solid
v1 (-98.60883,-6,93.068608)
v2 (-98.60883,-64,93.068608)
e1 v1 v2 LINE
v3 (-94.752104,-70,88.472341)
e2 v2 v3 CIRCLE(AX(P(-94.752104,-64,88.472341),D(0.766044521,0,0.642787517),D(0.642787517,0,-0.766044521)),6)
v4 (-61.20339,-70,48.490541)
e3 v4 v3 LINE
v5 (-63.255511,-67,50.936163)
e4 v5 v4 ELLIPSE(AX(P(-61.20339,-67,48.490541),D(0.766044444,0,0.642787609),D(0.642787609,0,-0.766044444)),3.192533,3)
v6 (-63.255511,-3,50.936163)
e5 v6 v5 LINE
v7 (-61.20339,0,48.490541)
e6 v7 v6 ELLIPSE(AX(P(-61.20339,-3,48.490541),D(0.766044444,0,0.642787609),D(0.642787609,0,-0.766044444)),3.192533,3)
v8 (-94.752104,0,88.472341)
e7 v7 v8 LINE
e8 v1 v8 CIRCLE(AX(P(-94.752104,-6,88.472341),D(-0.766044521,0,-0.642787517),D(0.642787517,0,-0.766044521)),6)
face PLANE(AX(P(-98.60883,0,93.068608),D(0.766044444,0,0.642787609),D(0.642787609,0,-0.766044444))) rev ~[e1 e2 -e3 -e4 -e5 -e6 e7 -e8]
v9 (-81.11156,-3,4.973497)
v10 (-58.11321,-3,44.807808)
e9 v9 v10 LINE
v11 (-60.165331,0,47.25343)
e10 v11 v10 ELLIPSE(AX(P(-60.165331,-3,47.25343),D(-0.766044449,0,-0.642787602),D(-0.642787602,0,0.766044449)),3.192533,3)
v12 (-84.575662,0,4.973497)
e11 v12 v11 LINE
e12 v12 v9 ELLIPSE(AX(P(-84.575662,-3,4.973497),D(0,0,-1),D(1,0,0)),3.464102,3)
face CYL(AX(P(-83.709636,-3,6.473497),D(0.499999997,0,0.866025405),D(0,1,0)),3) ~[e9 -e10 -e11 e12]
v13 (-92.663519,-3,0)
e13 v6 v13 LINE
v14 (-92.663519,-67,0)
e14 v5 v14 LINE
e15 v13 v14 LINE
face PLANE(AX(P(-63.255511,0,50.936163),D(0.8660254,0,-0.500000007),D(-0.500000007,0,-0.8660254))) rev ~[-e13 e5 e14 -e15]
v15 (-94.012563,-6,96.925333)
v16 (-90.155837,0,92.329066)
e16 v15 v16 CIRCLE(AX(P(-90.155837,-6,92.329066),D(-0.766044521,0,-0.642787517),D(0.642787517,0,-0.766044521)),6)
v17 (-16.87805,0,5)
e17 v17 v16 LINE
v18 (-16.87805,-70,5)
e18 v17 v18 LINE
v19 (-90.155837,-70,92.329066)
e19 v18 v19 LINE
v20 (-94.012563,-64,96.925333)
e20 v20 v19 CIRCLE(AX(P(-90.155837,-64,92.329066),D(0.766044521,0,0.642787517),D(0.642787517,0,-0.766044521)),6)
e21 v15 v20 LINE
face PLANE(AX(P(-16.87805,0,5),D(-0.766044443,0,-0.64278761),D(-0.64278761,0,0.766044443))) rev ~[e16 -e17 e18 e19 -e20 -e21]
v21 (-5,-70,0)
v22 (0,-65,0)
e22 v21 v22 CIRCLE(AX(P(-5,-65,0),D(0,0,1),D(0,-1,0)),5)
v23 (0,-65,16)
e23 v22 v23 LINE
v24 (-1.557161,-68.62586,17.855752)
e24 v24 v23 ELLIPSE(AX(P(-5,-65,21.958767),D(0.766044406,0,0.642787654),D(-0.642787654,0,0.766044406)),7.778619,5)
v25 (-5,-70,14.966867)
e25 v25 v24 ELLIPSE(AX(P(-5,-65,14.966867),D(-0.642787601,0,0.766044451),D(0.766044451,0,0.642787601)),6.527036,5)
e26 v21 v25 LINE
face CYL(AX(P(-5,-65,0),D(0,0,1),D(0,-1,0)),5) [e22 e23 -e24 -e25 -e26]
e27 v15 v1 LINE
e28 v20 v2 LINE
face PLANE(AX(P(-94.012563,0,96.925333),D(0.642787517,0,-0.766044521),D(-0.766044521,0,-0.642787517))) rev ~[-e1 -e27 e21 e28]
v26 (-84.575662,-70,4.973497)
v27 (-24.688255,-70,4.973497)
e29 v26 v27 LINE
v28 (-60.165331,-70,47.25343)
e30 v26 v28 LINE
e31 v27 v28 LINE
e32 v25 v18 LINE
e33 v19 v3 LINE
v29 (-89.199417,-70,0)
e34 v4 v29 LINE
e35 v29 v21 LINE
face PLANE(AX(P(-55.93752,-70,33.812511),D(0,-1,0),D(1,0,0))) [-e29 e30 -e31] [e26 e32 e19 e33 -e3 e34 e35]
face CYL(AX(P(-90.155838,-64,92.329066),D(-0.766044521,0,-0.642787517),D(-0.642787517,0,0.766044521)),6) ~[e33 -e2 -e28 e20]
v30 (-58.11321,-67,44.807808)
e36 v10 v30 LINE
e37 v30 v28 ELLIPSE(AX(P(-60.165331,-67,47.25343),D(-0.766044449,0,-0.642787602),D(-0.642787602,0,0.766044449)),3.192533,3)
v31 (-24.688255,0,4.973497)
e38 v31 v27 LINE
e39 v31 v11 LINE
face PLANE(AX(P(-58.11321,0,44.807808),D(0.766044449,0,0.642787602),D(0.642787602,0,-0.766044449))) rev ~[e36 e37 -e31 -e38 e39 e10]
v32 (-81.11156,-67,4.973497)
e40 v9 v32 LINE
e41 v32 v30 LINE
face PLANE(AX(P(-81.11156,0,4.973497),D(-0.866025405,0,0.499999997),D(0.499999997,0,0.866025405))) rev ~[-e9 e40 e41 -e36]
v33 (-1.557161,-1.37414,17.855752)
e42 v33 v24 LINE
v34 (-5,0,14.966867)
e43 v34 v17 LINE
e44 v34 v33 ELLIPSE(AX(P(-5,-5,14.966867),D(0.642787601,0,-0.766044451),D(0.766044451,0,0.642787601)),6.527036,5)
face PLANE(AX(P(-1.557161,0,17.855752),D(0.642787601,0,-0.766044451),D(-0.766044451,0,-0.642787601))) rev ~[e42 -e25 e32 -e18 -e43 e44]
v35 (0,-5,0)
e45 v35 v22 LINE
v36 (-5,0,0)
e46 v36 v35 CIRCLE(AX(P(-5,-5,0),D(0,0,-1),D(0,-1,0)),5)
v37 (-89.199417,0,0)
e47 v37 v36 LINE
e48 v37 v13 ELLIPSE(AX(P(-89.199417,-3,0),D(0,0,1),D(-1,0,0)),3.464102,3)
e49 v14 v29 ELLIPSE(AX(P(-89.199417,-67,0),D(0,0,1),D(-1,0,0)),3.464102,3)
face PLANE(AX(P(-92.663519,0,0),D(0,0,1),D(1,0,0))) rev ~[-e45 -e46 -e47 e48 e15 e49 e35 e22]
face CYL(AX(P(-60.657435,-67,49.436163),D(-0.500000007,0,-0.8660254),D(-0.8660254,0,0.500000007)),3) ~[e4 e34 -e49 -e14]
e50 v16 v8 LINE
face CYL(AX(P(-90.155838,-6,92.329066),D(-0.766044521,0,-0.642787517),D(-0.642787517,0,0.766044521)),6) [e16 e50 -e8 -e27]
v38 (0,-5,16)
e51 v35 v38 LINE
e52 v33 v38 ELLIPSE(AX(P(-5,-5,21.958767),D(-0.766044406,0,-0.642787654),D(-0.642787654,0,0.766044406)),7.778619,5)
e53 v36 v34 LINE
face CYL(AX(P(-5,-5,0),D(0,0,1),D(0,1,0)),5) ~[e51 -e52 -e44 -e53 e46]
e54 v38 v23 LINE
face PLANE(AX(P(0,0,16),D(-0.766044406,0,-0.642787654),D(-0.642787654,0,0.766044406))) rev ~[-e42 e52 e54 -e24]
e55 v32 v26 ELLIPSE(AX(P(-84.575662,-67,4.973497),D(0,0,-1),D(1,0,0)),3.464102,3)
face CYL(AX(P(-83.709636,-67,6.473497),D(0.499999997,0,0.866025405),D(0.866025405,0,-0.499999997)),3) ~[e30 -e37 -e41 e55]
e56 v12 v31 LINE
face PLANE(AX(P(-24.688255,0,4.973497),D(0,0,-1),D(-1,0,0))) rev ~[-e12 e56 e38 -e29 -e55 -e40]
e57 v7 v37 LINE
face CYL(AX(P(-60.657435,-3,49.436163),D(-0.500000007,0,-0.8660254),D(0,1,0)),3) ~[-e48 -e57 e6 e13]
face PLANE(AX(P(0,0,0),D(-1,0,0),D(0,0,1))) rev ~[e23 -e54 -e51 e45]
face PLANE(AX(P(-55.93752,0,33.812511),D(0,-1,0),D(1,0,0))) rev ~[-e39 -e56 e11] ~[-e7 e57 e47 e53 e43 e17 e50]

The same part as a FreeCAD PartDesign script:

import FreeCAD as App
import Part
import Sketcher
from FreeCAD import Vector
Q = App.Units.Quantity


def edges_at(feature, points):
    """Names of the edges that pass closest to the given points."""
    edges = feature.Shape.Edges
    near = lambda p: min(range(len(edges)), key=lambda i: edges[i].distToShape(Part.Vertex(*p))[0])
    return sorted({f"Edge{near(p) + 1}" for p in points})

doc = App.newDocument("Part")
params = doc.addObject("Spreadsheet::Sheet", "Params")
for row, (alias, value) in enumerate([
    ("sketch1_height", "16 mm"),
    ("sketch1_length", "20 mm"),
    ("sketch1_length2", "120 mm"),
    ("sketch1_length3", "6 mm"),
    ("sketch1_length4", "55.000001 mm"),
    ("pad1_length", "70 mm"),
    ("fillet_radius", "6 mm"),
    ("fillet2_radius", "5 mm"),
    ("fillet3_radius", "3 mm"),
], start=1):
    params.set(f"A{row}", alias)
    params.set(f"B{row}", "=" + value)
    params.setAlias(f"B{row}", alias)

body = doc.addObject("PartDesign::Body", "Body")

sketch1 = doc.addObject("Sketcher::SketchObject", "Sketch")
body.addObject(sketch1)
sketch1.AttachmentSupport = (doc.XZ_Plane, [""])
sketch1.MapMode = "FlatFace"
sketch1.addGeometry(Part.LineSegment(Vector(0, 0, 0), Vector(0, 16, 0)), False)
sketch1.addGeometry(Part.LineSegment(Vector(0, 16, 0), Vector(-1.6, 17.9, 0)), False)
sketch1.addGeometry(Part.LineSegment(Vector(-1.6, 17.9, 0), Vector(-16.9, 5, 0)), False)
sketch1.addGeometry(Part.LineSegment(Vector(-16.9, 5, 0), Vector(-94, 96.9, 0)), False)
sketch1.addGeometry(Part.LineSegment(Vector(-94, 96.9, 0), Vector(-98.6, 93.1, 0)), False)
sketch1.addGeometry(Part.LineSegment(Vector(-98.6, 93.1, 0), Vector(-63.3, 50.9, 0)), False)
sketch1.addGeometry(Part.LineSegment(Vector(-63.3, 50.9, 0), Vector(-92.7, 0, 0)), False)
sketch1.addGeometry(Part.LineSegment(Vector(-92.7, 0, 0), Vector(0, 0, 0)), False)
sketch1.addGeometry(Part.LineSegment(Vector(-81.1, 5, 0), Vector(-58.1, 44.8, 0)), False)
sketch1.addGeometry(Part.LineSegment(Vector(-58.1, 44.8, 0), Vector(-24.7, 5, 0)), False)
sketch1.addGeometry(Part.LineSegment(Vector(-24.7, 5, 0), Vector(-81.1, 5, 0)), False)
sketch1.addConstraint(Sketcher.Constraint("Coincident", 0, 2, 1, 1))
sketch1.addConstraint(Sketcher.Constraint("Coincident", 1, 2, 2, 1))
sketch1.addConstraint(Sketcher.Constraint("Coincident", 2, 2, 3, 1))
sketch1.addConstraint(Sketcher.Constraint("Coincident", 3, 2, 4, 1))
sketch1.addConstraint(Sketcher.Constraint("Coincident", 4, 2, 5, 1))
sketch1.addConstraint(Sketcher.Constraint("Coincident", 5, 2, 6, 1))
sketch1.addConstraint(Sketcher.Constraint("Coincident", 6, 2, 7, 1))
sketch1.addConstraint(Sketcher.Constraint("Coincident", 7, 2, 0, 1))
sketch1.addConstraint(Sketcher.Constraint("Coincident", 8, 2, 9, 1))
sketch1.addConstraint(Sketcher.Constraint("Coincident", 9, 2, 10, 1))
sketch1.addConstraint(Sketcher.Constraint("Coincident", 10, 2, 8, 1))
sketch1.addConstraint(Sketcher.Constraint("Vertical", 0))
sketch1.addConstraint(Sketcher.Constraint("Horizontal", 7))
sketch1.addConstraint(Sketcher.Constraint("Horizontal", 10))
sketch1.addConstraint(Sketcher.Constraint("Coincident", 7, 2, -1, 1))
sketch1.addConstraint(Sketcher.Constraint("Perpendicular", 1, 2))
sketch1.addConstraint(Sketcher.Constraint("Perpendicular", 2, 3))
sketch1.addConstraint(Sketcher.Constraint("Perpendicular", 3, 4))
sketch1.addConstraint(Sketcher.Constraint("Perpendicular", 4, 5))
sketch1.addConstraint(Sketcher.Constraint("Parallel", 6, 8))
sketch1.addConstraint(Sketcher.Constraint("Parallel", 5, 9))
sketch1.addConstraint(Sketcher.Constraint("DistanceY", 0, 1, 0, 2, 16.0))
sketch1.addConstraint(Sketcher.Constraint("Angle", 1, Q("130.000003 deg")))
sketch1.addConstraint(Sketcher.Constraint("Angle", 6, Q("-120 deg")))
sketch1.addConstraint(Sketcher.Constraint("Distance", 2, 20.0))
sketch1.addConstraint(Sketcher.Constraint("Distance", 3, 120.0))
sketch1.addConstraint(Sketcher.Constraint("Distance", 4, 6.0))
sketch1.addConstraint(Sketcher.Constraint("Distance", 5, 55.000001))
sketch1.addConstraint(Sketcher.Constraint("Distance", 9, 52.0))
sketch1.addConstraint(Sketcher.Constraint("DistanceY", -1, 1, 2, 2, 5.0))
sketch1.addConstraint(Sketcher.Constraint("DistanceX", 5, 2, 8, 2, 5.142301))
sketch1.addConstraint(Sketcher.Constraint("DistanceY", 8, 2, 4, 2, 48.2608))
sketch1.setExpression("Constraints[21]", "Params.sketch1_height")
sketch1.setExpression("Constraints[24]", "Params.sketch1_length")
sketch1.setExpression("Constraints[25]", "Params.sketch1_length2")
sketch1.setExpression("Constraints[26]", "Params.sketch1_length3")
sketch1.setExpression("Constraints[27]", "Params.sketch1_length4")
pad1 = doc.addObject("PartDesign::Pad", "Pad")
body.addObject(pad1)
pad1.Profile = sketch1
pad1.setExpression("Length", "Params.pad1_length")
doc.recompute()

fillet = doc.addObject("PartDesign::Fillet", "Fillet")
body.addObject(fillet)
fillet.Base = (pad1, edges_at(pad1, [(-96.311, -70, 94.997), (-96.311, 0, 94.997)]))
fillet.setExpression("Radius", "Params.fillet_radius")
doc.recompute()

fillet2 = doc.addObject("PartDesign::Fillet", "Fillet001")
body.addObject(fillet2)
fillet2.Base = (fillet, edges_at(fillet, [(0, -70, 8), (0, 0, 8)]))
fillet2.setExpression("Radius", "Params.fillet2_radius")
doc.recompute()

fillet3 = doc.addObject("PartDesign::Fillet", "Fillet002")
body.addObject(fillet3)
fillet3.Base = (fillet2, edges_at(fillet2, [
    (-69.612, -70, 24.891),
    (-77.96, -70, 25.468),
    (-77.96, 0, 25.468),
    (-69.612, 0, 24.891),
]))
fillet3.setExpression("Radius", "Params.fillet3_radius")

doc.recompute()
